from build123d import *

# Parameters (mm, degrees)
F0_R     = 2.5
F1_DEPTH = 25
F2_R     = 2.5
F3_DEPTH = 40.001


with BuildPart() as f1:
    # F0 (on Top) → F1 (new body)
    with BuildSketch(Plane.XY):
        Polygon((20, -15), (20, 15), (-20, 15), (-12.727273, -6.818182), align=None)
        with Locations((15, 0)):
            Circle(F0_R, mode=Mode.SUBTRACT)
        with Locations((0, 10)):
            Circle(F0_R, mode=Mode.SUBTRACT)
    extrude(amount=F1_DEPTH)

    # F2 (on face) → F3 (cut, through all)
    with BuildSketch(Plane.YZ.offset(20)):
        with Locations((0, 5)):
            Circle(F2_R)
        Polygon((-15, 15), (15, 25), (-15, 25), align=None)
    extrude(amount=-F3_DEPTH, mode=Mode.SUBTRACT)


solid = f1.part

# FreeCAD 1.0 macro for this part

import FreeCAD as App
import Part
import Sketcher

V = App.Vector


def add_polygon(sketch, points):
    """Adds a closed chain of lines whose ends are joined by coincident constraints."""
    first, n = sketch.GeometryCount, len(points)
    for a, b in zip(points, points[1:] + points[:1]):
        sketch.addGeometry(Part.LineSegment(App.Vector(*a, 0), App.Vector(*b, 0)), False)
    for i in range(n):
        sketch.addConstraint(Sketcher.Constraint("Coincident", first + i, 2, first + (i + 1) % n, 1))

doc = App.newDocument("Part")
body = doc.addObject("PartDesign::Body", "Body")

sketch1 = body.newObject("Sketcher::SketchObject", "Sketch")
sketch1.AttachmentSupport = (doc.getObject("XY_Plane"), [""])
sketch1.MapMode = "FlatFace"
add_polygon(sketch1, [(20, -15), (20, 15), (-20, 15), (-12.7, -6.8)])
sketch1.addGeometry(Part.Circle(V(15, 0, 0), V(0, 0, 1), 2.5), False)
sketch1.addGeometry(Part.Circle(V(0, 10, 0), V(0, 0, 1), 2.5), False)
sketch1.addConstraint(Sketcher.Constraint("Vertical", 0))
sketch1.addConstraint(Sketcher.Constraint("Horizontal", 1))
sketch1.addConstraint(Sketcher.Constraint("Equal", 4, 5))
sketch1.addConstraint(Sketcher.Constraint("Symmetric", 1, 2, 3, 2, -1, 1))
sketch1.addConstraint(Sketcher.Constraint("PointOnObject", 4, 3, -1))
sketch1.addConstraint(Sketcher.Constraint("PointOnObject", 5, 3, -2))
sketch1.addConstraint(Sketcher.Constraint("Diameter", 4, 5.0))
sketch1.addConstraint(Sketcher.Constraint("DistanceX", 1, 2, 1, 1, 40.0))
sketch1.addConstraint(Sketcher.Constraint("DistanceY", 0, 1, 0, 2, 30.0))
sketch1.addConstraint(Sketcher.Constraint("DistanceX", -1, 1, 4, 3, 15.0))
sketch1.addConstraint(Sketcher.Constraint("DistanceY", -1, 1, 5, 3, 10.0))
sketch1.addConstraint(Sketcher.Constraint("Distance", 3, 33.734501))
sketch1.addConstraint(Sketcher.Constraint("DistanceY", 2, 2, 5, 3, 16.818182))
pad1 = body.newObject("PartDesign::Pad", "Pad")
pad1.Profile = sketch1
pad1.Length = 25

sketch2 = body.newObject("Sketcher::SketchObject", "Sketch001")
sketch2.AttachmentSupport = (doc.getObject("YZ_Plane"), [""])
sketch2.MapMode = "FlatFace"
sketch2.AttachmentOffset = App.Placement(V(0, 0, 20), App.Rotation())
sketch2.addGeometry(Part.Circle(V(0, 5, 0), V(0, 0, 1), 2.5), False)
add_polygon(sketch2, [(-15, 15), (15, 25), (-15, 25)])
sketch2.addConstraint(Sketcher.Constraint("Horizontal", 2))
sketch2.addConstraint(Sketcher.Constraint("Vertical", 3))
sketch2.addConstraint(Sketcher.Constraint("PointOnObject", 0, 3, -2))
sketch2.addConstraint(Sketcher.Constraint("Diameter", 0, 5.0))
sketch2.addConstraint(Sketcher.Constraint("DistanceX", 2, 2, 2, 1, 30.0))
sketch2.addConstraint(Sketcher.Constraint("DistanceY", 3, 2, 3, 1, 10.0))
sketch2.addConstraint(Sketcher.Constraint("DistanceY", -1, 1, 0, 3, 5.0))
sketch2.addConstraint(Sketcher.Constraint("DistanceX", -1, 1, 1, 2, 15.0))
sketch2.addConstraint(Sketcher.Constraint("DistanceY", -1, 1, 1, 2, 25.0))
pocket1 = body.newObject("PartDesign::Pocket", "Pocket")
pocket1.Profile = sketch2
pocket1.Type = "ThroughAll"

doc.recompute()
